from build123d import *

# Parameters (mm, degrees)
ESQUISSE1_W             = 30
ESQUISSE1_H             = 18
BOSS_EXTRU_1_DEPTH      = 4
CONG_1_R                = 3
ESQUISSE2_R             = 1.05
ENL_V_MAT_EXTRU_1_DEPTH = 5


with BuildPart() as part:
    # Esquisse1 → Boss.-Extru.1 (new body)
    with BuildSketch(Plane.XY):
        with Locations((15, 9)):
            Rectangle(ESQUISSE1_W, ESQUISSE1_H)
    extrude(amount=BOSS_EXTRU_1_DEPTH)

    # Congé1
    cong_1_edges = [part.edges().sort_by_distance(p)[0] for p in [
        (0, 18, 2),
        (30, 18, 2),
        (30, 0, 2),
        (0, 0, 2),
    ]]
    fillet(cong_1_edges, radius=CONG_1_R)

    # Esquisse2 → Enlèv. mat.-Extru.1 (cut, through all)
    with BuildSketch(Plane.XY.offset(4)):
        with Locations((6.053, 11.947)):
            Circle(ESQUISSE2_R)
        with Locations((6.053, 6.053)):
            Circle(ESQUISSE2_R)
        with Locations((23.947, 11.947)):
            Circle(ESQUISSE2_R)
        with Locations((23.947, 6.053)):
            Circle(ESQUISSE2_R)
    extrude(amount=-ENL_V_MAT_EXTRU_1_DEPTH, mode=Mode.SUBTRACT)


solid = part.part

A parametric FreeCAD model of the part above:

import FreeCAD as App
import Part
import Sketcher

V = App.Vector
Q = App.Units.Quantity


def edges_at(feature, points):
    """Names of the edges that pass closest to the given points."""
    edges = feature.Shape.Edges
    near = lambda p: min(range(len(edges)), key=lambda i: edges[i].distToShape(Part.Vertex(*p))[0])
    return sorted({f"Edge{near(p) + 1}" for p in points})


def add_polygon(sketch, points):
    """Adds a closed chain of lines whose ends are joined by coincident constraints."""
    first, n = sketch.GeometryCount, len(points)
    for a, b in zip(points, points[1:] + points[:1]):
        sketch.addGeometry(Part.LineSegment(App.Vector(*a, 0), App.Vector(*b, 0)), False)
    for i in range(n):
        sketch.addConstraint(Sketcher.Constraint("Coincident", first + i, 2, first + (i + 1) % n, 1))

doc = App.newDocument("Part")
params = doc.addObject("Spreadsheet::Sheet", "Params")
for row, (alias, value) in enumerate([
    ("sketch1_width", "30 mm"),
    ("sketch1_height", "18 mm"),
    ("pad1_length", "4 mm"),
    ("fillet_radius", "3 mm"),
    ("sketch2_diameter", "2.1 mm"),
], start=1):
    params.set(f"A{row}", alias)
    params.set(f"B{row}", "=" + value)
    params.setAlias(f"B{row}", alias)

body = doc.addObject("PartDesign::Body", "Body")

sketch1 = body.newObject("Sketcher::SketchObject", "Sketch")
sketch1.AttachmentSupport = (doc.getObject("XY_Plane"), [""])
sketch1.MapMode = "FlatFace"
add_polygon(sketch1, [(0, 18), (0, 0), (30, 0), (30, 18)])
sketch1.addConstraint([
    Sketcher.Constraint("Vertical", 0),
    Sketcher.Constraint("Horizontal", 1),
    Sketcher.Constraint("Vertical", 2),
    Sketcher.Constraint("Horizontal", 3),
    Sketcher.Constraint("Coincident", 0, 2, -1, 1),
    Sketcher.Constraint("DistanceX", 1, 1, 1, 2, Q("30 mm")),
    Sketcher.Constraint("DistanceY", 0, 2, 0, 1, Q("18 mm")),
])
sketch1.setExpression("Constraints[9]", "Params.sketch1_width")
sketch1.setExpression("Constraints[10]", "Params.sketch1_height")
pad1 = body.newObject("PartDesign::Pad", "Pad")
pad1.Profile = sketch1
pad1.setExpression("Length", "Params.pad1_length")
doc.recompute()

fillet = body.newObject("PartDesign::Fillet", "Fillet")
fillet.Base = (pad1, edges_at(pad1, [
    (0, 18, 2),
    (30, 18, 2),
    (30, 0, 2),
    (0, 0, 2),
]))
fillet.setExpression("Radius", "Params.fillet_radius")

sketch2 = body.newObject("Sketcher::SketchObject", "Sketch001")
sketch2.AttachmentSupport = (doc.getObject("XY_Plane"), [""])
sketch2.MapMode = "FlatFace"
sketch2.AttachmentOffset = App.Placement(V(0, 0, 4), App.Rotation())
sketch2.addGeometry([
    Part.Circle(V(6.1, 11.9, 0), V(0, 0, 1), 1.1),
    Part.Circle(V(6.1, 6.1, 0), V(0, 0, 1), 1.1),
    Part.Circle(V(23.9, 11.9, 0), V(0, 0, 1), 1.1),
    Part.Circle(V(23.9, 6.1, 0), V(0, 0, 1), 1.1),
], False)
sketch2.addConstraint([
    Sketcher.Constraint("Equal", 0, 1),
    Sketcher.Constraint("Equal", 1, 2),
    Sketcher.Constraint("Equal", 2, 3),
    Sketcher.Constraint("Horizontal", 0, 3, 2, 3),
    Sketcher.Constraint("Horizontal", 1, 3, 3, 3),
    Sketcher.Constraint("Vertical", 0, 3, 1, 3),
    Sketcher.Constraint("Vertical", 2, 3, 3, 3),
    Sketcher.Constraint("Diameter", 0, Q("2.1 mm")),
    Sketcher.Constraint("DistanceX", -1, 1, 0, 3, Q("6.053 mm")),
    Sketcher.Constraint("DistanceY", -1, 1, 0, 3, Q("11.947 mm")),
    Sketcher.Constraint("DistanceY", -1, 1, 1, 3, Q("6.053 mm")),
    Sketcher.Constraint("DistanceX", -1, 1, 2, 3, Q("23.947 mm")),
])
sketch2.setExpression("Constraints[7]", "Params.sketch2_diameter")
pocket1 = body.newObject("PartDesign::Pocket", "Pocket")
pocket1.Profile = sketch2
pocket1.Type = "ThroughAll"

doc.recompute()
